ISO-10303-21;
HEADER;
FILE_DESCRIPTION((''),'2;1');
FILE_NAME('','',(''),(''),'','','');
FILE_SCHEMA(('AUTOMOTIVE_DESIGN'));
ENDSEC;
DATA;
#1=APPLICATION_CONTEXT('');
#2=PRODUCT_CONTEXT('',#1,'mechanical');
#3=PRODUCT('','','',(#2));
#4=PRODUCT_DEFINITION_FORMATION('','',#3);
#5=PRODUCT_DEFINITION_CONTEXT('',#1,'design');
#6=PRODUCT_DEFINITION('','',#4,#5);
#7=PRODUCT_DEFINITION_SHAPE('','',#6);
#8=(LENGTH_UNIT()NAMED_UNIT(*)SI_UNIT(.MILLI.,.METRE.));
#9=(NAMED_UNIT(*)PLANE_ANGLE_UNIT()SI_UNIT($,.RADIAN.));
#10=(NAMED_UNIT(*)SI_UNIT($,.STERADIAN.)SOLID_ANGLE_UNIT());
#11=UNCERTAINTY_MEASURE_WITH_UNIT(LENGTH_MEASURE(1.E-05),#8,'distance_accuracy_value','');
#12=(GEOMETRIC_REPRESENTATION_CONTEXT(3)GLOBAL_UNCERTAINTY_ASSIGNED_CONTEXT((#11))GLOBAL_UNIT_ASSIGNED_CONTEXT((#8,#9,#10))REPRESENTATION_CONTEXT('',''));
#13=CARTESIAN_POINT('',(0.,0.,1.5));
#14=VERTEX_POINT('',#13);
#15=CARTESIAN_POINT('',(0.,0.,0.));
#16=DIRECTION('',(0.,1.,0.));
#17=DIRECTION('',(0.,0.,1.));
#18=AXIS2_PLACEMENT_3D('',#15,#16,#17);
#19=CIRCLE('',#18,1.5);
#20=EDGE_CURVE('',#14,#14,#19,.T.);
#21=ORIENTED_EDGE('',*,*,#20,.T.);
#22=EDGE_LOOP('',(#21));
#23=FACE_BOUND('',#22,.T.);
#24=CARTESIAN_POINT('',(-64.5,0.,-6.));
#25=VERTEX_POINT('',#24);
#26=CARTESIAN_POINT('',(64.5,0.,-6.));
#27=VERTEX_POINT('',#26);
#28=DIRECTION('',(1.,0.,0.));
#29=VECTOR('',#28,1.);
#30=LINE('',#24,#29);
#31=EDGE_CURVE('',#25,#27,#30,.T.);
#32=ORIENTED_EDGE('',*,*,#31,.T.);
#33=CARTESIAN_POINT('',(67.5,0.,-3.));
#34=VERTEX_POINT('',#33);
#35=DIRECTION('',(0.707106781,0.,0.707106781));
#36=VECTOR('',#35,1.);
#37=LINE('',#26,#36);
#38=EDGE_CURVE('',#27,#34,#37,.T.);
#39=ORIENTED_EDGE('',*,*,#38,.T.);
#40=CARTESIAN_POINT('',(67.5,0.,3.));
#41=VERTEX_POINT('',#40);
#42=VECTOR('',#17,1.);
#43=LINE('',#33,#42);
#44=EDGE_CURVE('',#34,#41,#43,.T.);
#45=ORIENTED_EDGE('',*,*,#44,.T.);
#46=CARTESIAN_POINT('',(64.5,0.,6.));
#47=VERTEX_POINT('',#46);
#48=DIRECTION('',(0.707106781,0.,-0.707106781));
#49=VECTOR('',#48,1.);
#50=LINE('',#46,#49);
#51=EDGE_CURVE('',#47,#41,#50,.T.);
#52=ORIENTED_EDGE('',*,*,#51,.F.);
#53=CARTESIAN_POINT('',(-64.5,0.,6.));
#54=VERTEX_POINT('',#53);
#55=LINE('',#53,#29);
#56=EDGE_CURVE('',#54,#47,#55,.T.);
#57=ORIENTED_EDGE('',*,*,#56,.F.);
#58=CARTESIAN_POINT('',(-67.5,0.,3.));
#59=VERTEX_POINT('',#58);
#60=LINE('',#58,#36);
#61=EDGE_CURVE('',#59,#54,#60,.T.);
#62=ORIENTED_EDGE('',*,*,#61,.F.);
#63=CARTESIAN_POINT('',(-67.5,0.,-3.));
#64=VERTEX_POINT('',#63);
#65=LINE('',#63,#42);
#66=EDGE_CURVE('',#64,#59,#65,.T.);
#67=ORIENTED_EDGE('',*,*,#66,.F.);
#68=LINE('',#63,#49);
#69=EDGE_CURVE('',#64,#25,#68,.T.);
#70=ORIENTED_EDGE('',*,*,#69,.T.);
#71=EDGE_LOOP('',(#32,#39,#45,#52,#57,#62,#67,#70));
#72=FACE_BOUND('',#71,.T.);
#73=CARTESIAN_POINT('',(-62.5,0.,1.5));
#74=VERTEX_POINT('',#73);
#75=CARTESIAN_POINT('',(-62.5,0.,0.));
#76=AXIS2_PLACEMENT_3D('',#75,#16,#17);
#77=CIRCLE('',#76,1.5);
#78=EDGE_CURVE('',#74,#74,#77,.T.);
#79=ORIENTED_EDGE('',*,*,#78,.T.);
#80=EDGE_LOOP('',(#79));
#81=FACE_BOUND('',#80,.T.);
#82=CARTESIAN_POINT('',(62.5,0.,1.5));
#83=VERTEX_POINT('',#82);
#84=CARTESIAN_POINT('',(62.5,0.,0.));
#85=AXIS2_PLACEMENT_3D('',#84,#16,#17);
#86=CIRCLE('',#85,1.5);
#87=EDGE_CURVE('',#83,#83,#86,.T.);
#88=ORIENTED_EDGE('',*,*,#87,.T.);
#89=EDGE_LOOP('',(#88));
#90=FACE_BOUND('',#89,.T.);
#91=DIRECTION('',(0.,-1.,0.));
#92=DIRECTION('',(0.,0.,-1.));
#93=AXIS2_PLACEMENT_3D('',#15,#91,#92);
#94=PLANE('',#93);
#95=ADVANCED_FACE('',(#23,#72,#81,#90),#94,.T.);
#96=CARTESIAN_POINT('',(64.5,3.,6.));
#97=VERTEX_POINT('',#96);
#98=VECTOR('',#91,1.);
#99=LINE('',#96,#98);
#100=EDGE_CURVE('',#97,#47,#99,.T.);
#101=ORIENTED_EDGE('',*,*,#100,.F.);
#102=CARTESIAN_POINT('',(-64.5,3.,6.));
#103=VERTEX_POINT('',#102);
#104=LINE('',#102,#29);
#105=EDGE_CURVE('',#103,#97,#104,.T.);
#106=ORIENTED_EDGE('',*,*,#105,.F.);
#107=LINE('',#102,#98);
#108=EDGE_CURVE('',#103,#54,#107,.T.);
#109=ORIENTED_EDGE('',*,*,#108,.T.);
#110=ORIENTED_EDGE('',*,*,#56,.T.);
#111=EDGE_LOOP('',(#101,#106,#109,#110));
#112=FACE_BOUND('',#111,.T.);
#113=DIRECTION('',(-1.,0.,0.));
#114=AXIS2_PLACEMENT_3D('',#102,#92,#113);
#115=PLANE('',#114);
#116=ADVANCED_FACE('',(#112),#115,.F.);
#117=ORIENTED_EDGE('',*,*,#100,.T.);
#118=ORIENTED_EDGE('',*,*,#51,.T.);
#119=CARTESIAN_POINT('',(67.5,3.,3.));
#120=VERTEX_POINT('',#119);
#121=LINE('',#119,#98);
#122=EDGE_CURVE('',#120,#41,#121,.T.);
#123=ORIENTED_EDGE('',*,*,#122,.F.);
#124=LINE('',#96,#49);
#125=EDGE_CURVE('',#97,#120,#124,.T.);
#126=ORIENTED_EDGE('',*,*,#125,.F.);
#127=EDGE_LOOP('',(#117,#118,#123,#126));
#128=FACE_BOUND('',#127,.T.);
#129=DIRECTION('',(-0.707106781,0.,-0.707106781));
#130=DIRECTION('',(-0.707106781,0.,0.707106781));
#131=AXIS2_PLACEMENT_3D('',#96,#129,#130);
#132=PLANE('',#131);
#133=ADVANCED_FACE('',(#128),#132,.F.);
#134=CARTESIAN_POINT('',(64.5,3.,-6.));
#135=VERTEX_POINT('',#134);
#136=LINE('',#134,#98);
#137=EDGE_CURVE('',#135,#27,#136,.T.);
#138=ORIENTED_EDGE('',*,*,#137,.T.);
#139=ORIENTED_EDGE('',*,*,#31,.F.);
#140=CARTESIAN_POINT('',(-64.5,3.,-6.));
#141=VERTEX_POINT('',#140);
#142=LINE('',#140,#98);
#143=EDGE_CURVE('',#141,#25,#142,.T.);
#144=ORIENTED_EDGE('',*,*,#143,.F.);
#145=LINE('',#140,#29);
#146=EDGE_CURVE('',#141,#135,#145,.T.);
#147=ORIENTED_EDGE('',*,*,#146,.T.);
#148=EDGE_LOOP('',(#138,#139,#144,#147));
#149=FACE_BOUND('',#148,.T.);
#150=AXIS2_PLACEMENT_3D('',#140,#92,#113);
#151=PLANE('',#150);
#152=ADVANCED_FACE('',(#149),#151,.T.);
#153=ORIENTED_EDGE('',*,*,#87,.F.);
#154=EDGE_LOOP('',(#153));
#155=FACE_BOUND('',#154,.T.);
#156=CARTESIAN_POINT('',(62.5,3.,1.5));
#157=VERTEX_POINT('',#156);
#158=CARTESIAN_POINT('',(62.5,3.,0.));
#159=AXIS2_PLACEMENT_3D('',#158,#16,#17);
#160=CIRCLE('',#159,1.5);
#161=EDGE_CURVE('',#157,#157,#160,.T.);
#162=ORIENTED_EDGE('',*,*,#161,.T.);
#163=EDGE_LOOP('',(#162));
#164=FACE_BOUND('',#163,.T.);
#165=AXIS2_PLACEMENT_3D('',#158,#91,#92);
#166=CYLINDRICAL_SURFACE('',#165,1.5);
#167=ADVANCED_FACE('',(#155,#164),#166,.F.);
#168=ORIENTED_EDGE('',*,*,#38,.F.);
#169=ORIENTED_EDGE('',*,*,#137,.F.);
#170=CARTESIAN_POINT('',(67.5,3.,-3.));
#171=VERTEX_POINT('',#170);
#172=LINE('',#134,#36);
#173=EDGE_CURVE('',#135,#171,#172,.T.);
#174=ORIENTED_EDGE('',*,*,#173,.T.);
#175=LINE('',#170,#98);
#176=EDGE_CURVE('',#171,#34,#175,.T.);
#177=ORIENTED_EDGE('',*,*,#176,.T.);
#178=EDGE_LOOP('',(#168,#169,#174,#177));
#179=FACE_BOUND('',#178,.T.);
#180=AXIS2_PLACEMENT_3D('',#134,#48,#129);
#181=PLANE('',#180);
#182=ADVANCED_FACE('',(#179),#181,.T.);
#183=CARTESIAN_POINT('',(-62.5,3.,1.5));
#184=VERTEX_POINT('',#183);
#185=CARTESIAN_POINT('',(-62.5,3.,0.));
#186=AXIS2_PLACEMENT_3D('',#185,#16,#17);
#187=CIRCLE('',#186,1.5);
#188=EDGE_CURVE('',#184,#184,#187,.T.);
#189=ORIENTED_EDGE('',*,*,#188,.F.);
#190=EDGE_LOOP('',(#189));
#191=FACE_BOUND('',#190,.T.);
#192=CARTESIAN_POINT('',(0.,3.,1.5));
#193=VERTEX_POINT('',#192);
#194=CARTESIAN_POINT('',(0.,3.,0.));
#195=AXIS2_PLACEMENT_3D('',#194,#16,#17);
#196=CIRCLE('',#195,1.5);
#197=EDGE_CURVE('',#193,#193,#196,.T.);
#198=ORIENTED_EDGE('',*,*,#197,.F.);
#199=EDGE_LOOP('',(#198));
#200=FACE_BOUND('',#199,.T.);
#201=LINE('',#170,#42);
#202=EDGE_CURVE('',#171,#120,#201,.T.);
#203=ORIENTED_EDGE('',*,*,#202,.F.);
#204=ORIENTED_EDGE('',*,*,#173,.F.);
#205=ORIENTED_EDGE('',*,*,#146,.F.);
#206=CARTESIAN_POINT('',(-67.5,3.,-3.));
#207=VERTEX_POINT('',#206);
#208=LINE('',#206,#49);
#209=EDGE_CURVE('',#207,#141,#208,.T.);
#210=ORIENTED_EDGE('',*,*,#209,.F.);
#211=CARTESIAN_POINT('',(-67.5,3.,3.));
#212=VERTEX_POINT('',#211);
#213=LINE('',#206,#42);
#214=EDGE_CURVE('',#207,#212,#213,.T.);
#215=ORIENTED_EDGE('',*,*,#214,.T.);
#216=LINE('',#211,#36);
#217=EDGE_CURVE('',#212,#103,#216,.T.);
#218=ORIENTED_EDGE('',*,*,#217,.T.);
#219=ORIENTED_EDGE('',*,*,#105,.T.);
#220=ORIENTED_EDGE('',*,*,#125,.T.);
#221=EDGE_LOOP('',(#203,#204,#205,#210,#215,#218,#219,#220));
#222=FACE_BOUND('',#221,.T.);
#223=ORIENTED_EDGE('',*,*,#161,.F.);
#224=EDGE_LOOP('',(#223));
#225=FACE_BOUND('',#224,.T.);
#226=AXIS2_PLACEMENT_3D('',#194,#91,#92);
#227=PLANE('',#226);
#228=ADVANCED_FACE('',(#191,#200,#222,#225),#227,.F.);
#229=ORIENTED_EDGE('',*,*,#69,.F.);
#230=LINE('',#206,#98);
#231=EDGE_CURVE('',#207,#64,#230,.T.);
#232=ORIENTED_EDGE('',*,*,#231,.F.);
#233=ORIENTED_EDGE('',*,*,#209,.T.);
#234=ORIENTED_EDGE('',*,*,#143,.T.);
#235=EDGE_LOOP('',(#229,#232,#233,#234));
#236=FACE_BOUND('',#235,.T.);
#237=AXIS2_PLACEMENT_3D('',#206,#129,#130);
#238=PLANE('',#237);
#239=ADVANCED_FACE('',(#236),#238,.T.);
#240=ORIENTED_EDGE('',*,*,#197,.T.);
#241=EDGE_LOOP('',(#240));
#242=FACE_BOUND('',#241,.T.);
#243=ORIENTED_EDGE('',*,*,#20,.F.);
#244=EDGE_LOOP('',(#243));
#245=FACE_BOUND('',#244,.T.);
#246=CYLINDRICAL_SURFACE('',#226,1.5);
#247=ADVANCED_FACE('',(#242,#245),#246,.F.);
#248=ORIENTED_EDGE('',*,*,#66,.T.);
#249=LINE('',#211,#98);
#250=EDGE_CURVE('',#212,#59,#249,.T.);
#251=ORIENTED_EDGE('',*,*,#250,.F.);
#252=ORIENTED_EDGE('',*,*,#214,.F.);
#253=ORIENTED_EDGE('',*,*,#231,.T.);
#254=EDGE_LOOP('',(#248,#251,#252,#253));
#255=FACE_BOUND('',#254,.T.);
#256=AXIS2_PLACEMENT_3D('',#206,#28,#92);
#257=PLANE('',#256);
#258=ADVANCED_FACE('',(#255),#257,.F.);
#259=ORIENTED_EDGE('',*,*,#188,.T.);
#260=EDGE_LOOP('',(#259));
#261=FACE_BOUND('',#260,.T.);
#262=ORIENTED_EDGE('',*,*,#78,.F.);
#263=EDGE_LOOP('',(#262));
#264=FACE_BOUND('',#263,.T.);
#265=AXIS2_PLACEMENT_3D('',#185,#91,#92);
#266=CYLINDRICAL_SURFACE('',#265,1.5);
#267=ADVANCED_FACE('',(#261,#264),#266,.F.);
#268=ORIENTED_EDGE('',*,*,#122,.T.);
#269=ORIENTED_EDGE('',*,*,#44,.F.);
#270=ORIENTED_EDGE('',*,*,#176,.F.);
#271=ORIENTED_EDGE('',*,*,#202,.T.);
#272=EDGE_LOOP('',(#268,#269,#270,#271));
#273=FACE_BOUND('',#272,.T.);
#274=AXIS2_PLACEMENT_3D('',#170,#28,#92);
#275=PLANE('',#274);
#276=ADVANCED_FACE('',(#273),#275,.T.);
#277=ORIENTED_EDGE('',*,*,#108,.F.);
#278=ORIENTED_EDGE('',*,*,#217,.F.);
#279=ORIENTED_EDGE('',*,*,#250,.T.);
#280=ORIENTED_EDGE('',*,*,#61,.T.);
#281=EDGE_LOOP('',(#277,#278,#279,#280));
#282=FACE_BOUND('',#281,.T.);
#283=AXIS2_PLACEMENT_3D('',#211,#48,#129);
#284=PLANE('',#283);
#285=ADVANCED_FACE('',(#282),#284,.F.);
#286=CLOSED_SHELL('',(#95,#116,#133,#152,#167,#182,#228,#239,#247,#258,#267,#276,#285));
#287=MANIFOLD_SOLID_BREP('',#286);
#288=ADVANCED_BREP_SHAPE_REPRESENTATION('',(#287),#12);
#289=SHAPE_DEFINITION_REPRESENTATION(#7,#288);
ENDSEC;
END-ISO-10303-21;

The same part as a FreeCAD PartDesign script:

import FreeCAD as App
import Part
import Sketcher
from FreeCAD import Vector
Q = App.Units.Quantity


def add_polygon(sketch, points):
    """Adds a closed chain of lines whose ends are joined by coincident constraints."""
    first, n = sketch.GeometryCount, len(points)
    for a, b in zip(points, points[1:] + points[:1]):
        sketch.addGeometry(Part.LineSegment(App.Vector(*a, 0), App.Vector(*b, 0)), False)
    for i in range(n):
        sketch.addConstraint(Sketcher.Constraint("Coincident", first + i, 2, first + (i + 1) % n, 1))

doc = App.newDocument("Part")
body = doc.addObject("PartDesign::Body", "Body")

# Sketch on XZ plane
sketch1 = doc.addObject("Sketcher::SketchObject", "Sketch")
body.addObject(sketch1)
sketch1.AttachmentSupport = (doc.XZ_Plane, [""])
sketch1.MapMode = "FlatFace"
add_polygon(sketch1, [(-64.5, -6), (-67.5, -3), (-67.5, 3), (-64.5, 6), (64.5, 6), (67.5, 3), (67.5, -3), (64.5, -6)])  # lines 0-7
sketch1.addGeometry(Part.Circle(Vector(62.5, 0, 0), Vector(0, 0, 1), 1.5), False)  # 8
sketch1.addGeometry(Part.Circle(Vector(0, 0, 0), Vector(0, 0, 1), 1.5), False)  # 9
sketch1.addGeometry(Part.Circle(Vector(-62.5, 0, 0), Vector(0, 0, 1), 1.5), False)  # 10
sketch1.addConstraint([
    Sketcher.Constraint("Vertical", 1),
    Sketcher.Constraint("Horizontal", 3),
    Sketcher.Constraint("Vertical", 5),
    Sketcher.Constraint("Horizontal", 7),
    Sketcher.Constraint("Coincident", 9, 3, -1, 1),
    Sketcher.Constraint("Equal", 8, 9),
    Sketcher.Constraint("Equal", 9, 10),
    Sketcher.Constraint("Symmetric", 8, 3, 10, 3, -1, 1),
    Sketcher.Constraint("Symmetric", 0, 2, 4, 2, -1, 1),
    Sketcher.Constraint("Symmetric", 2, 2, 6, 2, -1, 1),
    Sketcher.Constraint("PointOnObject", 8, 3, -1),
    Sketcher.Constraint("Perpendicular", 0, 2),
    Sketcher.Constraint("Perpendicular", 2, 4),
    Sketcher.Constraint("Perpendicular", 4, 6),
    Sketcher.Constraint("Horizontal", 1, 2, 4, 2),
    Sketcher.Constraint("Vertical", 3, 2, 6, 2),
    Sketcher.Constraint("Diameter", 8, Q("3 mm")),
    Sketcher.Constraint("DistanceX", 3, 1, 3, 2, Q("129 mm")),
    Sketcher.Constraint("DistanceY", 1, 1, 1, 2, Q("6 mm")),
    Sketcher.Constraint("DistanceY", -1, 1, 2, 2, Q("6 mm")),
    Sketcher.Constraint("DistanceX", 10, 3, 8, 3, Q("125 mm")),
])
pad1 = doc.addObject("PartDesign::Pad", "Pad")
body.addObject(pad1)
pad1.Profile = sketch1
pad1.Length = 3
pad1.Reversed = True

doc.recompute()
